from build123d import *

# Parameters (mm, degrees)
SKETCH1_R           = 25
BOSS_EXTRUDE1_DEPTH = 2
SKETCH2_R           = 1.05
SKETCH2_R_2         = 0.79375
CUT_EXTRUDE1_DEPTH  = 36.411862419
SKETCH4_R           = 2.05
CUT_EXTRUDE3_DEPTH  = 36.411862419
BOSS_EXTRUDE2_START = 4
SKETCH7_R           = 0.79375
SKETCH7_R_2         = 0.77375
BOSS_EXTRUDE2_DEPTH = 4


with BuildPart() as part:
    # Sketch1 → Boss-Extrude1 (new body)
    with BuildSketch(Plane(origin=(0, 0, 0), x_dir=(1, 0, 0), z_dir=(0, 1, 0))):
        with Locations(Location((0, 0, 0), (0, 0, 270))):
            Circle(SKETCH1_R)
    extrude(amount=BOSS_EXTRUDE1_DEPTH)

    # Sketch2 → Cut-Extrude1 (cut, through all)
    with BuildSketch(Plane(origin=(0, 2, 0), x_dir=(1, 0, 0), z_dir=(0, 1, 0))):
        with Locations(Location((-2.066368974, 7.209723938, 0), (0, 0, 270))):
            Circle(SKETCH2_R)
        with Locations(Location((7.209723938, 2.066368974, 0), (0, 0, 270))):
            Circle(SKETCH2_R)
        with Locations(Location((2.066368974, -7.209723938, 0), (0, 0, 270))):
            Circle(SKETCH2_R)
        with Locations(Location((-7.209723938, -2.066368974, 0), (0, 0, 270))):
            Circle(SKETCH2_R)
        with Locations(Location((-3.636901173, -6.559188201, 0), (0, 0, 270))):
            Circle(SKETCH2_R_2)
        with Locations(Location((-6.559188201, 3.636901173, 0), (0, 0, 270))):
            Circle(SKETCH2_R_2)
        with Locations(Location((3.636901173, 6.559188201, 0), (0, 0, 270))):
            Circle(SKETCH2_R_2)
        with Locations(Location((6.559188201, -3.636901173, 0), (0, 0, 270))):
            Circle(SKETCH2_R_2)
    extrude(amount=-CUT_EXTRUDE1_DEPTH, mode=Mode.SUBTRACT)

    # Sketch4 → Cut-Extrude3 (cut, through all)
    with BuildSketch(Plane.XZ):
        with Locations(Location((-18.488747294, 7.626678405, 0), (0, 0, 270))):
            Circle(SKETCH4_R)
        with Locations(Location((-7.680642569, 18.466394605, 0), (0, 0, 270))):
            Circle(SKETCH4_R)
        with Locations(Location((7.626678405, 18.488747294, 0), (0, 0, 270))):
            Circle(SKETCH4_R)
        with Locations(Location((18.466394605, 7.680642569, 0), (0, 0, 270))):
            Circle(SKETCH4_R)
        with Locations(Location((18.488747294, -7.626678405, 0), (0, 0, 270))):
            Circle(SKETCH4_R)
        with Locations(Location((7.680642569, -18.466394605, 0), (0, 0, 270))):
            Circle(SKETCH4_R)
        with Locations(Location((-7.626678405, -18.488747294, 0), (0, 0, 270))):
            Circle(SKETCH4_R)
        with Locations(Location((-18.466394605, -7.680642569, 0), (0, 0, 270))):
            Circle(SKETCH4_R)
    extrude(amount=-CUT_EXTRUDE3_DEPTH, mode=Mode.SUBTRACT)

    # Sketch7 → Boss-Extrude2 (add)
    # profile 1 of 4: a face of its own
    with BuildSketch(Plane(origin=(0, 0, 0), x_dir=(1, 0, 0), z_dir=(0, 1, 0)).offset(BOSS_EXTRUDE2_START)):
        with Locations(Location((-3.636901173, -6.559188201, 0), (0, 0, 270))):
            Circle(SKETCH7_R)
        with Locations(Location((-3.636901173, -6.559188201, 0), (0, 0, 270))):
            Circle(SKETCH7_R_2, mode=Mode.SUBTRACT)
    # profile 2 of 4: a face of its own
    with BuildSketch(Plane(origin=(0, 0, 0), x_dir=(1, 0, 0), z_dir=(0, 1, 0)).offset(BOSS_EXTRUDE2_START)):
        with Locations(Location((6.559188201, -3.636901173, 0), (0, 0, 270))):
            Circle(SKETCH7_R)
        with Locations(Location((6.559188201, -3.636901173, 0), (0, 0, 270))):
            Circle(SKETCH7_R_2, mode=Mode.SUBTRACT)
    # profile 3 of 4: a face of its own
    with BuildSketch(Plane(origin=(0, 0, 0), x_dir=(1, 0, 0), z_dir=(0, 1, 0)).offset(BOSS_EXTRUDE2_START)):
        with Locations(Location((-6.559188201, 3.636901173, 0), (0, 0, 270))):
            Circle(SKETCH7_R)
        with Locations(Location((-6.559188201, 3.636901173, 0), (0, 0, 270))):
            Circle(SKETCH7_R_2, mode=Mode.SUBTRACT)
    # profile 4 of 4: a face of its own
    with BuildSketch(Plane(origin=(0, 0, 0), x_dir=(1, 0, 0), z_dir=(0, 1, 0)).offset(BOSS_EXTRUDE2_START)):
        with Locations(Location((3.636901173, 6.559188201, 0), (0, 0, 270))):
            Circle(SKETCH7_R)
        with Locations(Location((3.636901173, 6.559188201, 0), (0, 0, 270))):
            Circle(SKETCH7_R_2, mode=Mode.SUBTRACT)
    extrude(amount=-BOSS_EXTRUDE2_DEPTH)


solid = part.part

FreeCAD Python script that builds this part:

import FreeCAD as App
import Part
import Sketcher

V = App.Vector

doc = App.newDocument("Part")
body = doc.addObject("PartDesign::Body", "Body")

# Sketch on XZ plane
sketch1 = doc.addObject("Sketcher::SketchObject", "Sketch")
body.addObject(sketch1)
sketch1.AttachmentSupport = (doc.XZ_Plane, [""])
sketch1.MapMode = "FlatFace"
sketch1.addGeometry(Part.Circle(V(0, 0, 0), V(0, 0, 1), 25), False)
sketch1.addConstraint([
    Sketcher.Constraint("Coincident", 0, 3, -1, 1),
    Sketcher.Constraint("Diameter", 0, 50.0),
])
pad1 = doc.addObject("PartDesign::Pad", "Pad")
body.addObject(pad1)
pad1.Profile = sketch1
pad1.Length = 2
pad1.Reversed = True

# Sketch on XZ plane
sketch2 = doc.addObject("Sketcher::SketchObject", "Sketch001")
body.addObject(sketch2)
sketch2.AttachmentSupport = (doc.XZ_Plane, [""])
sketch2.MapMode = "FlatFace"
sketch2.AttachmentOffset = App.Placement(V(0, 0, -2), App.Rotation())
sketch2.addGeometry([
    Part.Circle(V(-2.066369, -7.209724, 0), V(0, 0, 1), 1.05),  # 0
    Part.Circle(V(7.209724, -2.066369, 0), V(0, 0, 1), 1.05),  # 1
    Part.Circle(V(2.066369, 7.209724, 0), V(0, 0, 1), 1.05),  # 2
    Part.Circle(V(-7.209724, 2.066369, 0), V(0, 0, 1), 1.05),  # 3
    Part.Circle(V(-3.636901, 6.559188, 0), V(0, 0, 1), 0.79375),  # 4
    Part.Circle(V(-6.559188, -3.636901, 0), V(0, 0, 1), 0.79375),  # 5
    Part.Circle(V(3.636901, -6.559188, 0), V(0, 0, 1), 0.79375),  # 6
    Part.Circle(V(6.559188, 3.636901, 0), V(0, 0, 1), 0.79375),  # 7
], False)
sketch2.addConstraint([
    Sketcher.Constraint("Equal", 0, 1),
    Sketcher.Constraint("Equal", 1, 2),
    Sketcher.Constraint("Equal", 2, 3),
    Sketcher.Constraint("Equal", 4, 5),
    Sketcher.Constraint("Equal", 5, 6),
    Sketcher.Constraint("Equal", 6, 7),
    Sketcher.Constraint("Symmetric", 0, 3, 2, 3, -1, 1),
    Sketcher.Constraint("Symmetric", 1, 3, 3, 3, -1, 1),
    Sketcher.Constraint("Symmetric", 4, 3, 6, 3, -1, 1),
    Sketcher.Constraint("Symmetric", 5, 3, 7, 3, -1, 1),
    Sketcher.Constraint("Diameter", 0, 2.1),
    Sketcher.Constraint("Diameter", 4, 1.5875),
    Sketcher.Constraint("DistanceX", 4, 3, -1, 1, 3.636901),
    Sketcher.Constraint("DistanceY", 5, 3, -1, 1, 3.636901),
    Sketcher.Constraint("DistanceX", 0, 3, -1, 1, 2.066369),
    Sketcher.Constraint("DistanceY", 1, 3, -1, 1, 2.066369),
    Sketcher.Constraint("DistanceY", -1, 1, 4, 3, 6.559188),
    Sketcher.Constraint("DistanceX", 5, 3, -1, 1, 6.559188),
    Sketcher.Constraint("DistanceY", 0, 3, -1, 1, 7.209724),
    Sketcher.Constraint("DistanceX", -1, 1, 1, 3, 7.209724),
])
pocket1 = doc.addObject("PartDesign::Pocket", "Pocket")
body.addObject(pocket1)
pocket1.Profile = sketch2
pocket1.Type = "ThroughAll"
pocket1.Reversed = True

# Sketch on XZ plane
sketch3 = doc.addObject("Sketcher::SketchObject", "Sketch002")
body.addObject(sketch3)
sketch3.AttachmentSupport = (doc.XZ_Plane, [""])
sketch3.MapMode = "FlatFace"
sketch3.addGeometry([
    Part.Circle(V(-18.488747, 7.626678, 0), V(0, 0, 1), 2.05),  # 0
    Part.Circle(V(-7.680643, 18.466395, 0), V(0, 0, 1), 2.05),  # 1
    Part.Circle(V(7.626678, 18.488747, 0), V(0, 0, 1), 2.05),  # 2
    Part.Circle(V(18.466395, 7.680643, 0), V(0, 0, 1), 2.05),  # 3
    Part.Circle(V(18.488747, -7.626678, 0), V(0, 0, 1), 2.05),  # 4
    Part.Circle(V(7.680643, -18.466395, 0), V(0, 0, 1), 2.05),  # 5
    Part.Circle(V(-7.626678, -18.488747, 0), V(0, 0, 1), 2.05),  # 6
    Part.Circle(V(-18.466395, -7.680643, 0), V(0, 0, 1), 2.05),  # 7
], False)
sketch3.addConstraint([
    Sketcher.Constraint("Equal", 0, 1),
    Sketcher.Constraint("Equal", 1, 2),
    Sketcher.Constraint("Equal", 2, 3),
    Sketcher.Constraint("Equal", 3, 4),
    Sketcher.Constraint("Equal", 4, 5),
    Sketcher.Constraint("Equal", 5, 6),
    Sketcher.Constraint("Equal", 6, 7),
    Sketcher.Constraint("Symmetric", 0, 3, 4, 3, -1, 1),
    Sketcher.Constraint("Symmetric", 1, 3, 5, 3, -1, 1),
    Sketcher.Constraint("Symmetric", 2, 3, 6, 3, -1, 1),
    Sketcher.Constraint("Symmetric", 3, 3, 7, 3, -1, 1),
    Sketcher.Constraint("Diameter", 0, 4.1),
    Sketcher.Constraint("DistanceY", -1, 1, 0, 3, 7.626678),
    Sketcher.Constraint("DistanceX", -1, 1, 2, 3, 7.626678),
    Sketcher.Constraint("DistanceX", 1, 3, 2, 3, 15.307321),
    Sketcher.Constraint("DistanceY", 0, 3, 2, 3, 10.862069),
    Sketcher.Constraint("DistanceX", 0, 3, 3, 3, 36.955142),
    Sketcher.Constraint("DistanceY", 4, 3, 3, 3, 15.307321),
    Sketcher.Constraint("DistanceX", 2, 3, 4, 3, 10.862069),
    Sketcher.Constraint("DistanceY", 5, 3, 2, 3, 36.955142),
])
pocket2 = doc.addObject("PartDesign::Pocket", "Pocket001")
body.addObject(pocket2)
pocket2.Profile = sketch3
pocket2.Type = "ThroughAll"

# Sketch on XZ plane
sketch4 = doc.addObject("Sketcher::SketchObject", "Sketch003")
body.addObject(sketch4)
sketch4.AttachmentSupport = (doc.XZ_Plane, [""])
sketch4.MapMode = "FlatFace"
sketch4.AttachmentOffset = App.Placement(V(0, 0, -4), App.Rotation())
sketch4.addGeometry([
    Part.Circle(V(-3.636901, 6.559188, 0), V(0, 0, 1), 0.79375),  # 0
    Part.Circle(V(-3.636901, 6.559188, 0), V(0, 0, 1), 0.77375),  # 1
    Part.Circle(V(6.559188, 3.636901, 0), V(0, 0, 1), 0.79375),  # 2
    Part.Circle(V(6.559188, 3.636901, 0), V(0, 0, 1), 0.77375),  # 3
    Part.Circle(V(-6.559188, -3.636901, 0), V(0, 0, 1), 0.79375),  # 4
    Part.Circle(V(-6.559188, -3.636901, 0), V(0, 0, 1), 0.77375),  # 5
    Part.Circle(V(3.636901, -6.559188, 0), V(0, 0, 1), 0.79375),  # 6
    Part.Circle(V(3.636901, -6.559188, 0), V(0, 0, 1), 0.77375),  # 7
], False)
sketch4.addConstraint([
    Sketcher.Constraint("Coincident", 1, 3, 0, 3),
    Sketcher.Constraint("Coincident", 3, 3, 2, 3),
    Sketcher.Constraint("Coincident", 5, 3, 4, 3),
    Sketcher.Constraint("Coincident", 7, 3, 6, 3),
    Sketcher.Constraint("Equal", 0, 2),
    Sketcher.Constraint("Equal", 1, 3),
    Sketcher.Constraint("Equal", 2, 4),
    Sketcher.Constraint("Equal", 3, 5),
    Sketcher.Constraint("Equal", 4, 6),
    Sketcher.Constraint("Equal", 5, 7),
    Sketcher.Constraint("Symmetric", 2, 3, 4, 3, -1, 1),
    Sketcher.Constraint("Symmetric", 0, 3, 6, 3, -1, 1),
    Sketcher.Constraint("Diameter", 0, 1.5875),
    Sketcher.Constraint("Diameter", 1, 1.5475),
    Sketcher.Constraint("DistanceX", 0, 3, -1, 1, 3.636901),
    Sketcher.Constraint("DistanceY", -1, 1, 2, 3, 3.636901),
    Sketcher.Constraint("DistanceY", -1, 1, 0, 3, 6.559188),
    Sketcher.Constraint("DistanceX", -1, 1, 2, 3, 6.559188),
])
pad2 = doc.addObject("PartDesign::Pad", "Pad001")
body.addObject(pad2)
pad2.Profile = sketch4
pad2.Length = 4

doc.recompute()
